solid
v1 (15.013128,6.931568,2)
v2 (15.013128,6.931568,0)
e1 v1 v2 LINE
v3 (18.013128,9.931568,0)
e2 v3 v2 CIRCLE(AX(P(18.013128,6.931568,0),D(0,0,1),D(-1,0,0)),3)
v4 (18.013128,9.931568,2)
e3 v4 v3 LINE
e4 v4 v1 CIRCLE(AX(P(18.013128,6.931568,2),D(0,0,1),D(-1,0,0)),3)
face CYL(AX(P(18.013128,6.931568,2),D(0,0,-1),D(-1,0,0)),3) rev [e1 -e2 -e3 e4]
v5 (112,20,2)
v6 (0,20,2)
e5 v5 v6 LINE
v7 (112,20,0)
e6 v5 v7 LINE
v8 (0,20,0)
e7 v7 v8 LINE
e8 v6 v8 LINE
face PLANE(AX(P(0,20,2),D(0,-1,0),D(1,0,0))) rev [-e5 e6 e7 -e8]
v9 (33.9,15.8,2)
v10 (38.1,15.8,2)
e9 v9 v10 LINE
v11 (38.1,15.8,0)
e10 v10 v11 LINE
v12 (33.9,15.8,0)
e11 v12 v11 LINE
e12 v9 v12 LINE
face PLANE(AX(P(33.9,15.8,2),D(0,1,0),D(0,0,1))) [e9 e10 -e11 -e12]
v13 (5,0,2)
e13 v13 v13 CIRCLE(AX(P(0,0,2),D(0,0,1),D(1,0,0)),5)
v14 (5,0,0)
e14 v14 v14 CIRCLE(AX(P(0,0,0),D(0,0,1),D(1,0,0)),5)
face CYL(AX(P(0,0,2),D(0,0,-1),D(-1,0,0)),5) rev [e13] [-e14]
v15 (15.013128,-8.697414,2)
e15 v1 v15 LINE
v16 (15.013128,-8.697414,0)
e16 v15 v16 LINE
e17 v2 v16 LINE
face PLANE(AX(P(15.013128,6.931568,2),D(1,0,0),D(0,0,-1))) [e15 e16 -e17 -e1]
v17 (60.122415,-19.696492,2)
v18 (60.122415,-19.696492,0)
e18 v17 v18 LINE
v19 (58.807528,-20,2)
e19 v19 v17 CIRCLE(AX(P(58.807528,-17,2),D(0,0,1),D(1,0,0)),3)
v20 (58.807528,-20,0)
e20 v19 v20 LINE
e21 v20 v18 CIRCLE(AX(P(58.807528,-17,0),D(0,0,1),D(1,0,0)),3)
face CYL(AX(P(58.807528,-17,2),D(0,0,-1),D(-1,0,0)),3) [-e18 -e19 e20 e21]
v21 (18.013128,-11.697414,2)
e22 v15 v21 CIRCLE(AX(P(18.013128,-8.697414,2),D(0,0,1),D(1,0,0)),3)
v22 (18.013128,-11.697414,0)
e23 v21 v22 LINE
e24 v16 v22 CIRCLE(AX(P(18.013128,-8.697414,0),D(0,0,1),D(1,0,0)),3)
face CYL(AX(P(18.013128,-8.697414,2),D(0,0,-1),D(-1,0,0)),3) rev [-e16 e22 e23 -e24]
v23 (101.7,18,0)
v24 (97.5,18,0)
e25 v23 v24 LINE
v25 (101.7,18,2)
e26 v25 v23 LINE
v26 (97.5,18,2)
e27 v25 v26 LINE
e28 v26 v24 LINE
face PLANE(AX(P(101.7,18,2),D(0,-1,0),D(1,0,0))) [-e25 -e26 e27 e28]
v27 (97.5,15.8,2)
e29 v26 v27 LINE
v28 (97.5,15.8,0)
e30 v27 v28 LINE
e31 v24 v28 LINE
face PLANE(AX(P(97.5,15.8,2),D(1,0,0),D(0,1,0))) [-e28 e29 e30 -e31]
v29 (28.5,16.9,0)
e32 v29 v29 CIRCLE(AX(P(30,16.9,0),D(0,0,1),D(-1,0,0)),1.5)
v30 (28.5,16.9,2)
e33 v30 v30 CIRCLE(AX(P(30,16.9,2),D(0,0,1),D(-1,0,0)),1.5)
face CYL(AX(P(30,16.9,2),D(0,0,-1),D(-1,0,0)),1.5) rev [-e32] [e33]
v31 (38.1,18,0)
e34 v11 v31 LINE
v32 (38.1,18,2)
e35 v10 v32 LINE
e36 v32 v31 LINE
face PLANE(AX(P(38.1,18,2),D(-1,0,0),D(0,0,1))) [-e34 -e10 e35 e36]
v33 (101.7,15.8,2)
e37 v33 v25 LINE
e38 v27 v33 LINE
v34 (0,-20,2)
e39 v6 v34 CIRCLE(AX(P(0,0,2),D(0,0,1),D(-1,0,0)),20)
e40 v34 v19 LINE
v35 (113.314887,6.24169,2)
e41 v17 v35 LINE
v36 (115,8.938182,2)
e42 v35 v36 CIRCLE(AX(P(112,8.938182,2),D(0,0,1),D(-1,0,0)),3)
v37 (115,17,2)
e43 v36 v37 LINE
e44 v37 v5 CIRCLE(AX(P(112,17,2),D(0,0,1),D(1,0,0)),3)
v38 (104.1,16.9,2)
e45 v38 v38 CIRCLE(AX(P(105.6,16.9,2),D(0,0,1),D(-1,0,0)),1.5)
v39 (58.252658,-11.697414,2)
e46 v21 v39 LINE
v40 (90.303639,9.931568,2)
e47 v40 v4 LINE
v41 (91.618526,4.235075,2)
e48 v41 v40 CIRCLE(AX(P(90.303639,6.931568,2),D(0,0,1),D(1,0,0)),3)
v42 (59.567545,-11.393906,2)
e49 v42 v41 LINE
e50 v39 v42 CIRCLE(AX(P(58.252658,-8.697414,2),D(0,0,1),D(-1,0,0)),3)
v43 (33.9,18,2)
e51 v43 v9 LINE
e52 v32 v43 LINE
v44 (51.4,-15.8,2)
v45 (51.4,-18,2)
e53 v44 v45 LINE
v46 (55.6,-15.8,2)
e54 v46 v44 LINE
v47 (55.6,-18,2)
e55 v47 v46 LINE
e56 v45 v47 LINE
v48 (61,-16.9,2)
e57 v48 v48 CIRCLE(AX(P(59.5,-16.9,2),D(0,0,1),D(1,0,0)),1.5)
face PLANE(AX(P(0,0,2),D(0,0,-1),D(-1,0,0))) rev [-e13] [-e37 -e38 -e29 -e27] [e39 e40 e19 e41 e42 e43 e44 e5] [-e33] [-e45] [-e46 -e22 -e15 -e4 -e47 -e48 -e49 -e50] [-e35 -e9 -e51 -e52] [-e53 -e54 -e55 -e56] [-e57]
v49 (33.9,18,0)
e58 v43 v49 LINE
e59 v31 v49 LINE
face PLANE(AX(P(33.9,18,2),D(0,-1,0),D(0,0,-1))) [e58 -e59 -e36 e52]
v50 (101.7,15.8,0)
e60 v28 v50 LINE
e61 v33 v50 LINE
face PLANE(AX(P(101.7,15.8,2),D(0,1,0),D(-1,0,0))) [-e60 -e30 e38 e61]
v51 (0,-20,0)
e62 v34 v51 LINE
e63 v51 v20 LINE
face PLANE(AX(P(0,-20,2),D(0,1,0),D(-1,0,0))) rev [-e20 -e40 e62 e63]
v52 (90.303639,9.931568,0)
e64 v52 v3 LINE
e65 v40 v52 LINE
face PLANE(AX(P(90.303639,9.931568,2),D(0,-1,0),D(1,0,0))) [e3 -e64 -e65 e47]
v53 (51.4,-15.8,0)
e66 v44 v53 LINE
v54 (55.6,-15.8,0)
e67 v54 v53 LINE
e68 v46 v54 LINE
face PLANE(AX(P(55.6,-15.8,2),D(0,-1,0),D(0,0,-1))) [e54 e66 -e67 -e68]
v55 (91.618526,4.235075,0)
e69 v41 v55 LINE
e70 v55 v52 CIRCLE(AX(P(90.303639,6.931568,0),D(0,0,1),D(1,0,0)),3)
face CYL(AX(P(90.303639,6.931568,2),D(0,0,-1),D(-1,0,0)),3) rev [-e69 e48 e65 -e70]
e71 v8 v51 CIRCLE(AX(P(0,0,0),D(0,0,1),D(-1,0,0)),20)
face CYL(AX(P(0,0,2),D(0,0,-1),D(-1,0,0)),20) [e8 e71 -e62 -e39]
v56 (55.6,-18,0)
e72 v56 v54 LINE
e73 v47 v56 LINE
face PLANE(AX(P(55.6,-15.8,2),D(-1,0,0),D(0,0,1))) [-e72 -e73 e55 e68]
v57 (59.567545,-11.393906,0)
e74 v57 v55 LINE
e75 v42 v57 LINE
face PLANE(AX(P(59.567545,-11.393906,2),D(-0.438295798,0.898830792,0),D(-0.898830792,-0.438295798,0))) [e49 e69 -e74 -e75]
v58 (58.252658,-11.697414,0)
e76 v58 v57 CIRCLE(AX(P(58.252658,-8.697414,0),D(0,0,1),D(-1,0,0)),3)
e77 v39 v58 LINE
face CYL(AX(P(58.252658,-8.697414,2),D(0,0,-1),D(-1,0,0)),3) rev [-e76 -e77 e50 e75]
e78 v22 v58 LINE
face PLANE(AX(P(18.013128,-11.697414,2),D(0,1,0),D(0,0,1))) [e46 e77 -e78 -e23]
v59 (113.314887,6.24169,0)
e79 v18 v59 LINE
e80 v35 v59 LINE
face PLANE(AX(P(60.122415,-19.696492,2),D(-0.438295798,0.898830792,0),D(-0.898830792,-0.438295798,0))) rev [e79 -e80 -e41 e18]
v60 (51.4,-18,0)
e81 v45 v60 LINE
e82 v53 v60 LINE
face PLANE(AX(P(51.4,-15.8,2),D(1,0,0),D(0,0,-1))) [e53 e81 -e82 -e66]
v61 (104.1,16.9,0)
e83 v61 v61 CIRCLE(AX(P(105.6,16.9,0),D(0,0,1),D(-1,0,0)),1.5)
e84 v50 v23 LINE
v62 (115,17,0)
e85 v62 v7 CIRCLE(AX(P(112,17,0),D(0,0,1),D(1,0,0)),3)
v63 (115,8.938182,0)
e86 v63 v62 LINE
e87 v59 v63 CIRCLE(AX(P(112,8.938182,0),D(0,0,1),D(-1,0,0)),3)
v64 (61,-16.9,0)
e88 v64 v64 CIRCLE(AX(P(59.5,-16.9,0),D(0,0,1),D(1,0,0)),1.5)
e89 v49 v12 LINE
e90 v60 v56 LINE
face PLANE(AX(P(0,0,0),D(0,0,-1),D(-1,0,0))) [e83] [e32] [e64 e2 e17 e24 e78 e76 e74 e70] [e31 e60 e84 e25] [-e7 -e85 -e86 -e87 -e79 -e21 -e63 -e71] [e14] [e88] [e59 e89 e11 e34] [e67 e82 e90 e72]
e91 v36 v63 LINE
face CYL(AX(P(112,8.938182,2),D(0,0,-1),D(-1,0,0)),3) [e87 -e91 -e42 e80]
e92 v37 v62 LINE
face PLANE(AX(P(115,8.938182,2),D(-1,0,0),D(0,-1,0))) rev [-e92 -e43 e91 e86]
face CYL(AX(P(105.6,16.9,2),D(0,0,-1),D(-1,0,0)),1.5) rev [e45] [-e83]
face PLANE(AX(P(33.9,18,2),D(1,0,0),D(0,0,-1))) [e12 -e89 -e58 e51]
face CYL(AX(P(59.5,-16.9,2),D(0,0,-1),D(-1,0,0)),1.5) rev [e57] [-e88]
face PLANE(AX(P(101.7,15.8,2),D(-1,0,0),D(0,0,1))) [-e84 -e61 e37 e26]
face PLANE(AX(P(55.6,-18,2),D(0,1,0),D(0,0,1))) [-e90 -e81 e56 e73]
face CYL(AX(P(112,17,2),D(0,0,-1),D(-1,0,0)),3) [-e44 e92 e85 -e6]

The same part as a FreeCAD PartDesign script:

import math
import FreeCAD as App
import Part
import Sketcher

V = App.Vector


def add_polygon(sketch, points):
    """Adds a closed chain of lines whose ends are joined by coincident constraints."""
    first, n = sketch.GeometryCount, len(points)
    for a, b in zip(points, points[1:] + points[:1]):
        sketch.addGeometry(Part.LineSegment(App.Vector(*a, 0), App.Vector(*b, 0)), False)
    for i in range(n):
        sketch.addConstraint(Sketcher.Constraint("Coincident", first + i, 2, first + (i + 1) % n, 1))

doc = App.newDocument("Part")
body = doc.addObject("PartDesign::Body", "Body")

sketch1 = body.newObject("Sketcher::SketchObject", "Sketch")
sketch1.AttachmentSupport = (doc.getObject("XY_Plane"), [""])
sketch1.MapMode = "FlatFace"
sketch1.addGeometry(Part.LineSegment(V(112, 20, 0), V(0, 20, 0)), False)
sketch1.addGeometry(Part.ArcOfCircle(Part.Circle(V(0, 0, 0), V(0, 0, 1), 20), math.radians(90), math.radians(270)), False)
sketch1.addGeometry(Part.LineSegment(V(0, -20, 0), V(58.8, -20, 0)), False)
sketch1.addGeometry(Part.ArcOfCircle(Part.Circle(V(58.8, -17, 0), V(0, 0, 1), 3), math.radians(-90), math.radians(-64)), False)
sketch1.addGeometry(Part.LineSegment(V(60.1, -19.7, 0), V(113.3, 6.2, 0)), False)
sketch1.addGeometry(Part.ArcOfCircle(Part.Circle(V(112, 8.9, 0), V(0, 0, 1), 3), math.radians(-64), math.radians(0)), False)
sketch1.addGeometry(Part.LineSegment(V(115, 8.9, 0), V(115, 17, 0)), False)
sketch1.addGeometry(Part.ArcOfCircle(Part.Circle(V(112, 17, 0), V(0, 0, 1), 3), math.radians(0), math.radians(90)), False)
sketch1.addGeometry(Part.Circle(V(59.5, -16.9, 0), V(0, 0, 1), 1.5), False)
add_polygon(sketch1, [(51.4, -18), (51.4, -15.8), (55.6, -15.8), (55.6, -18)])
sketch1.addGeometry(Part.ArcOfCircle(Part.Circle(V(58.3, -8.7, 0), V(0, 0, 1), 3), math.radians(-90), math.radians(-64)), False)
sketch1.addGeometry(Part.LineSegment(V(58.3, -11.7, 0), V(18, -11.7, 0)), False)
sketch1.addGeometry(Part.ArcOfCircle(Part.Circle(V(18, -8.7, 0), V(0, 0, 1), 3), math.radians(180), math.radians(270)), False)
sketch1.addGeometry(Part.LineSegment(V(15, -8.7, 0), V(15, 6.9, 0)), False)
sketch1.addGeometry(Part.ArcOfCircle(Part.Circle(V(18, 6.9, 0), V(0, 0, 1), 3), math.radians(90), math.radians(180)), False)
sketch1.addGeometry(Part.LineSegment(V(18, 9.9, 0), V(90.3, 9.9, 0)), False)
sketch1.addGeometry(Part.ArcOfCircle(Part.Circle(V(90.3, 6.9, 0), V(0, 0, 1), 3), math.radians(-64), math.radians(90)), False)
sketch1.addGeometry(Part.LineSegment(V(91.6, 4.2, 0), V(59.6, -11.4, 0)), False)
sketch1.addGeometry(Part.Circle(V(105.6, 16.9, 0), V(0, 0, 1), 1.5), False)
add_polygon(sketch1, [(97.5, 15.8), (97.5, 18), (101.7, 18), (101.7, 15.8)])
sketch1.addGeometry(Part.Circle(V(0, 0, 0), V(0, 0, 1), 5), False)
add_polygon(sketch1, [(33.9, 15.8), (33.9, 18), (38.1, 18), (38.1, 15.8)])
sketch1.addGeometry(Part.Circle(V(30, 16.9, 0), V(0, 0, 1), 1.5), False)
sketch1.addConstraint(Sketcher.Constraint("Tangent", 0, 2, 1, 1))
sketch1.addConstraint(Sketcher.Constraint("Tangent", 1, 2, 2, 1))
sketch1.addConstraint(Sketcher.Constraint("Tangent", 2, 2, 3, 1))
sketch1.addConstraint(Sketcher.Constraint("Tangent", 3, 2, 4, 1))
sketch1.addConstraint(Sketcher.Constraint("Tangent", 4, 2, 5, 1))
sketch1.addConstraint(Sketcher.Constraint("Tangent", 5, 2, 6, 1))
sketch1.addConstraint(Sketcher.Constraint("Tangent", 6, 2, 7, 1))
sketch1.addConstraint(Sketcher.Constraint("Tangent", 7, 2, 0, 1))
sketch1.addConstraint(Sketcher.Constraint("Tangent", 13, 1, 14, 1))
sketch1.addConstraint(Sketcher.Constraint("Tangent", 14, 2, 15, 2))
sketch1.addConstraint(Sketcher.Constraint("Tangent", 15, 1, 16, 1))
sketch1.addConstraint(Sketcher.Constraint("Tangent", 16, 2, 17, 2))
sketch1.addConstraint(Sketcher.Constraint("Tangent", 17, 1, 18, 1))
sketch1.addConstraint(Sketcher.Constraint("Tangent", 18, 2, 19, 2))
sketch1.addConstraint(Sketcher.Constraint("Tangent", 19, 1, 20, 1))
sketch1.addConstraint(Sketcher.Constraint("Tangent", 20, 2, 13, 2))
sketch1.addConstraint(Sketcher.Constraint("Horizontal", 0))
sketch1.addConstraint(Sketcher.Constraint("Horizontal", 2))
sketch1.addConstraint(Sketcher.Constraint("Vertical", 6))
sketch1.addConstraint(Sketcher.Constraint("Vertical", 9))
sketch1.addConstraint(Sketcher.Constraint("Horizontal", 10))
sketch1.addConstraint(Sketcher.Constraint("Vertical", 11))
sketch1.addConstraint(Sketcher.Constraint("Horizontal", 12))
sketch1.addConstraint(Sketcher.Constraint("Horizontal", 14))
sketch1.addConstraint(Sketcher.Constraint("Vertical", 16))
sketch1.addConstraint(Sketcher.Constraint("Horizontal", 18))
sketch1.addConstraint(Sketcher.Constraint("Vertical", 22))
sketch1.addConstraint(Sketcher.Constraint("Horizontal", 23))
sketch1.addConstraint(Sketcher.Constraint("Vertical", 24))
sketch1.addConstraint(Sketcher.Constraint("Horizontal", 25))
sketch1.addConstraint(Sketcher.Constraint("Vertical", 27))
sketch1.addConstraint(Sketcher.Constraint("Horizontal", 28))
sketch1.addConstraint(Sketcher.Constraint("Vertical", 29))
sketch1.addConstraint(Sketcher.Constraint("Horizontal", 30))
sketch1.addConstraint(Sketcher.Constraint("Coincident", 1, 3, -1, 1))
sketch1.addConstraint(Sketcher.Constraint("Coincident", 26, 3, -1, 1))
sketch1.addConstraint(Sketcher.Constraint("Equal", 3, 5))
sketch1.addConstraint(Sketcher.Constraint("Equal", 5, 7))
sketch1.addConstraint(Sketcher.Constraint("Equal", 7, 13))
sketch1.addConstraint(Sketcher.Constraint("Equal", 13, 15))
sketch1.addConstraint(Sketcher.Constraint("Equal", 15, 17))
sketch1.addConstraint(Sketcher.Constraint("Equal", 17, 19))
sketch1.addConstraint(Sketcher.Constraint("Equal", 8, 21))
sketch1.addConstraint(Sketcher.Constraint("Equal", 21, 31))
sketch1.addConstraint(Sketcher.Constraint("Parallel", 4, 20))
sketch1.addConstraint(Sketcher.Constraint("Horizontal", 21, 3, 31, 3))
sketch1.addConstraint(Sketcher.Constraint("Horizontal", 23, 2, 27, 2))
sketch1.addConstraint(Sketcher.Constraint("Horizontal", 25, 2, 29, 2))
sketch1.addConstraint(Sketcher.Constraint("Equal", 12, 23))
sketch1.addConstraint(Sketcher.Constraint("Equal", 25, 28))
sketch1.addConstraint(Sketcher.Constraint("Equal", 11, 22))
sketch1.addConstraint(Sketcher.Constraint("Diameter", 8, 3.0))
sketch1.addConstraint(Sketcher.Constraint("Diameter", 26, 10.0))
sketch1.addConstraint(Sketcher.Constraint("Radius", 1, 20.0))
sketch1.addConstraint(Sketcher.Constraint("Radius", 3, 3.0))
sketch1.addConstraint(Sketcher.Constraint("DistanceX", 0, 2, 0, 1, 112.0))
sketch1.addConstraint(Sketcher.Constraint("DistanceX", 10, 1, 10, 2, 4.2))
sketch1.addConstraint(Sketcher.Constraint("DistanceY", 9, 1, 9, 2, 2.2))
sketch1.addConstraint(Sketcher.Constraint("DistanceX", -1, 1, 31, 3, 30.0))
sketch1.addConstraint(Sketcher.Constraint("DistanceY", 11, 2, -1, 1, 18.0))
sketch1.addConstraint(Sketcher.Constraint("DistanceY", -1, 1, 22, 2, 18.0))
sketch1.addConstraint(Sketcher.Constraint("DistanceX", -1, 1, 8, 3, 59.5))
sketch1.addConstraint(Sketcher.Constraint("DistanceY", 8, 3, -1, 1, 16.9))
sketch1.addConstraint(Sketcher.Constraint("DistanceX", -1, 1, 21, 3, 105.6))
sketch1.addConstraint(Sketcher.Constraint("DistanceY", -1, 1, 21, 3, 16.9))
sketch1.addConstraint(Sketcher.Constraint("DistanceX", -1, 1, 9, 2, 51.4))
sketch1.addConstraint(Sketcher.Constraint("DistanceX", -1, 1, 22, 2, 97.5))
sketch1.addConstraint(Sketcher.Constraint("DistanceX", -1, 1, 27, 2, 33.9))
sketch1.addConstraint(Sketcher.Constraint("DistanceX", 14, 2, 14, 1, 40.23953))
sketch1.addConstraint(Sketcher.Constraint("DistanceX", 18, 1, 18, 2, 72.290511))
sketch1.addConstraint(Sketcher.Constraint("DistanceY", 16, 1, 16, 2, 15.628982))
sketch1.addConstraint(Sketcher.Constraint("DistanceX", 15, 3, 3, 3, 40.7944))
sketch1.addConstraint(Sketcher.Constraint("Distance", 4, 59.179628))
sketch1.addConstraint(Sketcher.Constraint("DistanceY", 3, 2, 13, 3, 10.999078))
pad1 = body.newObject("PartDesign::Pad", "Pad")
pad1.Profile = sketch1
pad1.Length = 2

doc.recompute()
